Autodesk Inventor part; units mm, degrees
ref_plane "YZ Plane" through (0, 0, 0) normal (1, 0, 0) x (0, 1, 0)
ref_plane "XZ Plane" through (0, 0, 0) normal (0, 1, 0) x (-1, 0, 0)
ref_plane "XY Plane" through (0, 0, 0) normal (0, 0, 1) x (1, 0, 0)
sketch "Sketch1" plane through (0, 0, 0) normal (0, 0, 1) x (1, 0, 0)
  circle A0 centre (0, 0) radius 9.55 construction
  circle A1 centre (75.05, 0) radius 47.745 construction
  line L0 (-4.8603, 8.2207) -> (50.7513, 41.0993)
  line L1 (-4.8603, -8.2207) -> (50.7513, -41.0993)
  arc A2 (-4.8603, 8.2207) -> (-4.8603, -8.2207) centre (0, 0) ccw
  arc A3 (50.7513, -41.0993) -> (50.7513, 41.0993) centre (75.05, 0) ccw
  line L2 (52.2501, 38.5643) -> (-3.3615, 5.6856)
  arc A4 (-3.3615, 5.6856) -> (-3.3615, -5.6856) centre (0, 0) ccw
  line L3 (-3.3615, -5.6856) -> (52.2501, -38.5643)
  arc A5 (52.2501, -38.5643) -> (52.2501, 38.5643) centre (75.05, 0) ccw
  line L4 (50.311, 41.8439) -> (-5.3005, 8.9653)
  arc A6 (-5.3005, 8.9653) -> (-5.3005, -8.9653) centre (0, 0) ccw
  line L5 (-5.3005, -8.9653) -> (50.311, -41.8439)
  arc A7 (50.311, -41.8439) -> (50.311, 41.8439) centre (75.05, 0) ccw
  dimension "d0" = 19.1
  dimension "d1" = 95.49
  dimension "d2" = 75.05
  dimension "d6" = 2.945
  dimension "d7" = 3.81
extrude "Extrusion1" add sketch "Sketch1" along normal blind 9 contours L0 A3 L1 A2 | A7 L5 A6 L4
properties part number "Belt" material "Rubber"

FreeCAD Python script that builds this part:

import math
import FreeCAD as App
import Part
import Sketcher
from FreeCAD import Vector
Q = App.Units.Quantity

doc = App.newDocument("Part")
body = doc.addObject("PartDesign::Body", "Body")

# Sketch on XY plane
sketch1 = body.newObject("Sketcher::SketchObject", "Sketch")
sketch1.AttachmentSupport = (doc.getObject("XY_Plane"), [""])
sketch1.MapMode = "FlatFace"
sketch1.addGeometry([
    Part.ArcOfCircle(Part.Circle(Vector(75, 0, 0), Vector(0, 0, 1), 49), math.radians(-121), math.radians(121)),  # 0
    Part.LineSegment(Vector(50, 42, 0), Vector(-5, 9, 0)),  # 1
    Part.ArcOfCircle(Part.Circle(Vector(0, 0, 0), Vector(0, 0, 1), 10), math.radians(121), math.radians(239)),  # 2
    Part.LineSegment(Vector(-5, -9, 0), Vector(50, -42, 0)),  # 3
    Part.LineSegment(Vector(-3, 6, 0), Vector(52, 39, 0)),  # 4
    Part.ArcOfCircle(Part.Circle(Vector(75, 0, 0), Vector(0, 0, 1), 45), math.radians(-121), math.radians(121)),  # 5
    Part.LineSegment(Vector(52, -39, 0), Vector(-3, -6, 0)),  # 6
    Part.ArcOfCircle(Part.Circle(Vector(0, 0, 0), Vector(0, 0, 1), 7), math.radians(121), math.radians(239)),  # 7
], False)
sketch1.addConstraint([
    Sketcher.Constraint("Tangent", 0, 2, 1, 1),
    Sketcher.Constraint("Tangent", 1, 2, 2, 1),
    Sketcher.Constraint("Tangent", 2, 2, 3, 1),
    Sketcher.Constraint("Tangent", 3, 2, 0, 1),
    Sketcher.Constraint("Tangent", 4, 2, 5, 2),
    Sketcher.Constraint("Tangent", 5, 1, 6, 1),
    Sketcher.Constraint("Tangent", 6, 2, 7, 2),
    Sketcher.Constraint("Tangent", 7, 1, 4, 1),
    Sketcher.Constraint("Coincident", 2, 3, -1, 1),
    Sketcher.Constraint("Coincident", 7, 3, -1, 1),
    Sketcher.Constraint("Coincident", 5, 3, 0, 3),
    Sketcher.Constraint("PointOnObject", 0, 3, -1),
    Sketcher.Constraint("Parallel", 1, 4),
    Sketcher.Constraint("Radius", 5, Q("44.8 mm")),
    Sketcher.Constraint("DistanceX", -1, 1, 0, 3, Q("75.05 mm")),
    Sketcher.Constraint("Radius", 0, Q("48.61 mm")),
    Sketcher.Constraint("Radius", 2, Q("10.415 mm")),
])
pad1 = body.newObject("PartDesign::Pad", "Pad")
pad1.Profile = sketch1
pad1.Length = 9

doc.recompute()
